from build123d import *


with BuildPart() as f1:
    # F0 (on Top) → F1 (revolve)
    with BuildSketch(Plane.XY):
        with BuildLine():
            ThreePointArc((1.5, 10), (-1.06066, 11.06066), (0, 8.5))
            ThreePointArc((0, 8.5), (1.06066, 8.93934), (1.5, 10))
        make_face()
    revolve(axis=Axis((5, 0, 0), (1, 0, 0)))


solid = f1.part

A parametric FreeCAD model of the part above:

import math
import FreeCAD as App
import Part
import Sketcher

doc = App.newDocument("Part")
params = doc.addObject("Spreadsheet::Sheet", "Params")
for row, (alias, value) in enumerate([
    ("sketch1_radius", "1.5 mm"),
    ("revolution_angle", "360 deg"),
], start=1):
    params.set(f"A{row}", alias)
    params.set(f"B{row}", "=" + value)
    params.setAlias(f"B{row}", alias)

body = doc.addObject("PartDesign::Body", "Body")

# Sketch on XY plane
sketch1 = body.newObject("Sketcher::SketchObject", "Sketch")
sketch1.AttachmentSupport = (doc.getObject("XY_Plane"), [""])
sketch1.MapMode = "FlatFace"
sketch1.addGeometry([
    Part.ArcOfCircle(Part.Circle(App.Vector(0, 10, 0), App.Vector(0, 0, 1), 1.5), math.radians(0), math.radians(270)),
    Part.ArcOfCircle(Part.Circle(App.Vector(0, 10, 0), App.Vector(0, 0, 1), 1.5), math.radians(-90), math.radians(0)),
], False)
sketch1.addConstraint([
    Sketcher.Constraint("Tangent", 0, 1, 1, 2),
    Sketcher.Constraint("Coincident", 1, 1, 0, 2),
    Sketcher.Constraint("PointOnObject", 0, 3, -2),
    Sketcher.Constraint("PointOnObject", 1, 1, -2),
    Sketcher.Constraint("Horizontal", 1, 3, 0, 1),
    Sketcher.Constraint("Radius", 0, 1.5),
    Sketcher.Constraint("DistanceY", -1, 1, 0, 3, 10.0),
])
sketch1.setExpression("Constraints[5]", "Params.sketch1_radius")
revolution = body.newObject("PartDesign::Revolution", "Revolution")
revolution.Profile = sketch1
revolution.ReferenceAxis = (sketch1, ["H_Axis"])
revolution.setExpression("Angle", "Params.revolution_angle")

doc.recompute()
